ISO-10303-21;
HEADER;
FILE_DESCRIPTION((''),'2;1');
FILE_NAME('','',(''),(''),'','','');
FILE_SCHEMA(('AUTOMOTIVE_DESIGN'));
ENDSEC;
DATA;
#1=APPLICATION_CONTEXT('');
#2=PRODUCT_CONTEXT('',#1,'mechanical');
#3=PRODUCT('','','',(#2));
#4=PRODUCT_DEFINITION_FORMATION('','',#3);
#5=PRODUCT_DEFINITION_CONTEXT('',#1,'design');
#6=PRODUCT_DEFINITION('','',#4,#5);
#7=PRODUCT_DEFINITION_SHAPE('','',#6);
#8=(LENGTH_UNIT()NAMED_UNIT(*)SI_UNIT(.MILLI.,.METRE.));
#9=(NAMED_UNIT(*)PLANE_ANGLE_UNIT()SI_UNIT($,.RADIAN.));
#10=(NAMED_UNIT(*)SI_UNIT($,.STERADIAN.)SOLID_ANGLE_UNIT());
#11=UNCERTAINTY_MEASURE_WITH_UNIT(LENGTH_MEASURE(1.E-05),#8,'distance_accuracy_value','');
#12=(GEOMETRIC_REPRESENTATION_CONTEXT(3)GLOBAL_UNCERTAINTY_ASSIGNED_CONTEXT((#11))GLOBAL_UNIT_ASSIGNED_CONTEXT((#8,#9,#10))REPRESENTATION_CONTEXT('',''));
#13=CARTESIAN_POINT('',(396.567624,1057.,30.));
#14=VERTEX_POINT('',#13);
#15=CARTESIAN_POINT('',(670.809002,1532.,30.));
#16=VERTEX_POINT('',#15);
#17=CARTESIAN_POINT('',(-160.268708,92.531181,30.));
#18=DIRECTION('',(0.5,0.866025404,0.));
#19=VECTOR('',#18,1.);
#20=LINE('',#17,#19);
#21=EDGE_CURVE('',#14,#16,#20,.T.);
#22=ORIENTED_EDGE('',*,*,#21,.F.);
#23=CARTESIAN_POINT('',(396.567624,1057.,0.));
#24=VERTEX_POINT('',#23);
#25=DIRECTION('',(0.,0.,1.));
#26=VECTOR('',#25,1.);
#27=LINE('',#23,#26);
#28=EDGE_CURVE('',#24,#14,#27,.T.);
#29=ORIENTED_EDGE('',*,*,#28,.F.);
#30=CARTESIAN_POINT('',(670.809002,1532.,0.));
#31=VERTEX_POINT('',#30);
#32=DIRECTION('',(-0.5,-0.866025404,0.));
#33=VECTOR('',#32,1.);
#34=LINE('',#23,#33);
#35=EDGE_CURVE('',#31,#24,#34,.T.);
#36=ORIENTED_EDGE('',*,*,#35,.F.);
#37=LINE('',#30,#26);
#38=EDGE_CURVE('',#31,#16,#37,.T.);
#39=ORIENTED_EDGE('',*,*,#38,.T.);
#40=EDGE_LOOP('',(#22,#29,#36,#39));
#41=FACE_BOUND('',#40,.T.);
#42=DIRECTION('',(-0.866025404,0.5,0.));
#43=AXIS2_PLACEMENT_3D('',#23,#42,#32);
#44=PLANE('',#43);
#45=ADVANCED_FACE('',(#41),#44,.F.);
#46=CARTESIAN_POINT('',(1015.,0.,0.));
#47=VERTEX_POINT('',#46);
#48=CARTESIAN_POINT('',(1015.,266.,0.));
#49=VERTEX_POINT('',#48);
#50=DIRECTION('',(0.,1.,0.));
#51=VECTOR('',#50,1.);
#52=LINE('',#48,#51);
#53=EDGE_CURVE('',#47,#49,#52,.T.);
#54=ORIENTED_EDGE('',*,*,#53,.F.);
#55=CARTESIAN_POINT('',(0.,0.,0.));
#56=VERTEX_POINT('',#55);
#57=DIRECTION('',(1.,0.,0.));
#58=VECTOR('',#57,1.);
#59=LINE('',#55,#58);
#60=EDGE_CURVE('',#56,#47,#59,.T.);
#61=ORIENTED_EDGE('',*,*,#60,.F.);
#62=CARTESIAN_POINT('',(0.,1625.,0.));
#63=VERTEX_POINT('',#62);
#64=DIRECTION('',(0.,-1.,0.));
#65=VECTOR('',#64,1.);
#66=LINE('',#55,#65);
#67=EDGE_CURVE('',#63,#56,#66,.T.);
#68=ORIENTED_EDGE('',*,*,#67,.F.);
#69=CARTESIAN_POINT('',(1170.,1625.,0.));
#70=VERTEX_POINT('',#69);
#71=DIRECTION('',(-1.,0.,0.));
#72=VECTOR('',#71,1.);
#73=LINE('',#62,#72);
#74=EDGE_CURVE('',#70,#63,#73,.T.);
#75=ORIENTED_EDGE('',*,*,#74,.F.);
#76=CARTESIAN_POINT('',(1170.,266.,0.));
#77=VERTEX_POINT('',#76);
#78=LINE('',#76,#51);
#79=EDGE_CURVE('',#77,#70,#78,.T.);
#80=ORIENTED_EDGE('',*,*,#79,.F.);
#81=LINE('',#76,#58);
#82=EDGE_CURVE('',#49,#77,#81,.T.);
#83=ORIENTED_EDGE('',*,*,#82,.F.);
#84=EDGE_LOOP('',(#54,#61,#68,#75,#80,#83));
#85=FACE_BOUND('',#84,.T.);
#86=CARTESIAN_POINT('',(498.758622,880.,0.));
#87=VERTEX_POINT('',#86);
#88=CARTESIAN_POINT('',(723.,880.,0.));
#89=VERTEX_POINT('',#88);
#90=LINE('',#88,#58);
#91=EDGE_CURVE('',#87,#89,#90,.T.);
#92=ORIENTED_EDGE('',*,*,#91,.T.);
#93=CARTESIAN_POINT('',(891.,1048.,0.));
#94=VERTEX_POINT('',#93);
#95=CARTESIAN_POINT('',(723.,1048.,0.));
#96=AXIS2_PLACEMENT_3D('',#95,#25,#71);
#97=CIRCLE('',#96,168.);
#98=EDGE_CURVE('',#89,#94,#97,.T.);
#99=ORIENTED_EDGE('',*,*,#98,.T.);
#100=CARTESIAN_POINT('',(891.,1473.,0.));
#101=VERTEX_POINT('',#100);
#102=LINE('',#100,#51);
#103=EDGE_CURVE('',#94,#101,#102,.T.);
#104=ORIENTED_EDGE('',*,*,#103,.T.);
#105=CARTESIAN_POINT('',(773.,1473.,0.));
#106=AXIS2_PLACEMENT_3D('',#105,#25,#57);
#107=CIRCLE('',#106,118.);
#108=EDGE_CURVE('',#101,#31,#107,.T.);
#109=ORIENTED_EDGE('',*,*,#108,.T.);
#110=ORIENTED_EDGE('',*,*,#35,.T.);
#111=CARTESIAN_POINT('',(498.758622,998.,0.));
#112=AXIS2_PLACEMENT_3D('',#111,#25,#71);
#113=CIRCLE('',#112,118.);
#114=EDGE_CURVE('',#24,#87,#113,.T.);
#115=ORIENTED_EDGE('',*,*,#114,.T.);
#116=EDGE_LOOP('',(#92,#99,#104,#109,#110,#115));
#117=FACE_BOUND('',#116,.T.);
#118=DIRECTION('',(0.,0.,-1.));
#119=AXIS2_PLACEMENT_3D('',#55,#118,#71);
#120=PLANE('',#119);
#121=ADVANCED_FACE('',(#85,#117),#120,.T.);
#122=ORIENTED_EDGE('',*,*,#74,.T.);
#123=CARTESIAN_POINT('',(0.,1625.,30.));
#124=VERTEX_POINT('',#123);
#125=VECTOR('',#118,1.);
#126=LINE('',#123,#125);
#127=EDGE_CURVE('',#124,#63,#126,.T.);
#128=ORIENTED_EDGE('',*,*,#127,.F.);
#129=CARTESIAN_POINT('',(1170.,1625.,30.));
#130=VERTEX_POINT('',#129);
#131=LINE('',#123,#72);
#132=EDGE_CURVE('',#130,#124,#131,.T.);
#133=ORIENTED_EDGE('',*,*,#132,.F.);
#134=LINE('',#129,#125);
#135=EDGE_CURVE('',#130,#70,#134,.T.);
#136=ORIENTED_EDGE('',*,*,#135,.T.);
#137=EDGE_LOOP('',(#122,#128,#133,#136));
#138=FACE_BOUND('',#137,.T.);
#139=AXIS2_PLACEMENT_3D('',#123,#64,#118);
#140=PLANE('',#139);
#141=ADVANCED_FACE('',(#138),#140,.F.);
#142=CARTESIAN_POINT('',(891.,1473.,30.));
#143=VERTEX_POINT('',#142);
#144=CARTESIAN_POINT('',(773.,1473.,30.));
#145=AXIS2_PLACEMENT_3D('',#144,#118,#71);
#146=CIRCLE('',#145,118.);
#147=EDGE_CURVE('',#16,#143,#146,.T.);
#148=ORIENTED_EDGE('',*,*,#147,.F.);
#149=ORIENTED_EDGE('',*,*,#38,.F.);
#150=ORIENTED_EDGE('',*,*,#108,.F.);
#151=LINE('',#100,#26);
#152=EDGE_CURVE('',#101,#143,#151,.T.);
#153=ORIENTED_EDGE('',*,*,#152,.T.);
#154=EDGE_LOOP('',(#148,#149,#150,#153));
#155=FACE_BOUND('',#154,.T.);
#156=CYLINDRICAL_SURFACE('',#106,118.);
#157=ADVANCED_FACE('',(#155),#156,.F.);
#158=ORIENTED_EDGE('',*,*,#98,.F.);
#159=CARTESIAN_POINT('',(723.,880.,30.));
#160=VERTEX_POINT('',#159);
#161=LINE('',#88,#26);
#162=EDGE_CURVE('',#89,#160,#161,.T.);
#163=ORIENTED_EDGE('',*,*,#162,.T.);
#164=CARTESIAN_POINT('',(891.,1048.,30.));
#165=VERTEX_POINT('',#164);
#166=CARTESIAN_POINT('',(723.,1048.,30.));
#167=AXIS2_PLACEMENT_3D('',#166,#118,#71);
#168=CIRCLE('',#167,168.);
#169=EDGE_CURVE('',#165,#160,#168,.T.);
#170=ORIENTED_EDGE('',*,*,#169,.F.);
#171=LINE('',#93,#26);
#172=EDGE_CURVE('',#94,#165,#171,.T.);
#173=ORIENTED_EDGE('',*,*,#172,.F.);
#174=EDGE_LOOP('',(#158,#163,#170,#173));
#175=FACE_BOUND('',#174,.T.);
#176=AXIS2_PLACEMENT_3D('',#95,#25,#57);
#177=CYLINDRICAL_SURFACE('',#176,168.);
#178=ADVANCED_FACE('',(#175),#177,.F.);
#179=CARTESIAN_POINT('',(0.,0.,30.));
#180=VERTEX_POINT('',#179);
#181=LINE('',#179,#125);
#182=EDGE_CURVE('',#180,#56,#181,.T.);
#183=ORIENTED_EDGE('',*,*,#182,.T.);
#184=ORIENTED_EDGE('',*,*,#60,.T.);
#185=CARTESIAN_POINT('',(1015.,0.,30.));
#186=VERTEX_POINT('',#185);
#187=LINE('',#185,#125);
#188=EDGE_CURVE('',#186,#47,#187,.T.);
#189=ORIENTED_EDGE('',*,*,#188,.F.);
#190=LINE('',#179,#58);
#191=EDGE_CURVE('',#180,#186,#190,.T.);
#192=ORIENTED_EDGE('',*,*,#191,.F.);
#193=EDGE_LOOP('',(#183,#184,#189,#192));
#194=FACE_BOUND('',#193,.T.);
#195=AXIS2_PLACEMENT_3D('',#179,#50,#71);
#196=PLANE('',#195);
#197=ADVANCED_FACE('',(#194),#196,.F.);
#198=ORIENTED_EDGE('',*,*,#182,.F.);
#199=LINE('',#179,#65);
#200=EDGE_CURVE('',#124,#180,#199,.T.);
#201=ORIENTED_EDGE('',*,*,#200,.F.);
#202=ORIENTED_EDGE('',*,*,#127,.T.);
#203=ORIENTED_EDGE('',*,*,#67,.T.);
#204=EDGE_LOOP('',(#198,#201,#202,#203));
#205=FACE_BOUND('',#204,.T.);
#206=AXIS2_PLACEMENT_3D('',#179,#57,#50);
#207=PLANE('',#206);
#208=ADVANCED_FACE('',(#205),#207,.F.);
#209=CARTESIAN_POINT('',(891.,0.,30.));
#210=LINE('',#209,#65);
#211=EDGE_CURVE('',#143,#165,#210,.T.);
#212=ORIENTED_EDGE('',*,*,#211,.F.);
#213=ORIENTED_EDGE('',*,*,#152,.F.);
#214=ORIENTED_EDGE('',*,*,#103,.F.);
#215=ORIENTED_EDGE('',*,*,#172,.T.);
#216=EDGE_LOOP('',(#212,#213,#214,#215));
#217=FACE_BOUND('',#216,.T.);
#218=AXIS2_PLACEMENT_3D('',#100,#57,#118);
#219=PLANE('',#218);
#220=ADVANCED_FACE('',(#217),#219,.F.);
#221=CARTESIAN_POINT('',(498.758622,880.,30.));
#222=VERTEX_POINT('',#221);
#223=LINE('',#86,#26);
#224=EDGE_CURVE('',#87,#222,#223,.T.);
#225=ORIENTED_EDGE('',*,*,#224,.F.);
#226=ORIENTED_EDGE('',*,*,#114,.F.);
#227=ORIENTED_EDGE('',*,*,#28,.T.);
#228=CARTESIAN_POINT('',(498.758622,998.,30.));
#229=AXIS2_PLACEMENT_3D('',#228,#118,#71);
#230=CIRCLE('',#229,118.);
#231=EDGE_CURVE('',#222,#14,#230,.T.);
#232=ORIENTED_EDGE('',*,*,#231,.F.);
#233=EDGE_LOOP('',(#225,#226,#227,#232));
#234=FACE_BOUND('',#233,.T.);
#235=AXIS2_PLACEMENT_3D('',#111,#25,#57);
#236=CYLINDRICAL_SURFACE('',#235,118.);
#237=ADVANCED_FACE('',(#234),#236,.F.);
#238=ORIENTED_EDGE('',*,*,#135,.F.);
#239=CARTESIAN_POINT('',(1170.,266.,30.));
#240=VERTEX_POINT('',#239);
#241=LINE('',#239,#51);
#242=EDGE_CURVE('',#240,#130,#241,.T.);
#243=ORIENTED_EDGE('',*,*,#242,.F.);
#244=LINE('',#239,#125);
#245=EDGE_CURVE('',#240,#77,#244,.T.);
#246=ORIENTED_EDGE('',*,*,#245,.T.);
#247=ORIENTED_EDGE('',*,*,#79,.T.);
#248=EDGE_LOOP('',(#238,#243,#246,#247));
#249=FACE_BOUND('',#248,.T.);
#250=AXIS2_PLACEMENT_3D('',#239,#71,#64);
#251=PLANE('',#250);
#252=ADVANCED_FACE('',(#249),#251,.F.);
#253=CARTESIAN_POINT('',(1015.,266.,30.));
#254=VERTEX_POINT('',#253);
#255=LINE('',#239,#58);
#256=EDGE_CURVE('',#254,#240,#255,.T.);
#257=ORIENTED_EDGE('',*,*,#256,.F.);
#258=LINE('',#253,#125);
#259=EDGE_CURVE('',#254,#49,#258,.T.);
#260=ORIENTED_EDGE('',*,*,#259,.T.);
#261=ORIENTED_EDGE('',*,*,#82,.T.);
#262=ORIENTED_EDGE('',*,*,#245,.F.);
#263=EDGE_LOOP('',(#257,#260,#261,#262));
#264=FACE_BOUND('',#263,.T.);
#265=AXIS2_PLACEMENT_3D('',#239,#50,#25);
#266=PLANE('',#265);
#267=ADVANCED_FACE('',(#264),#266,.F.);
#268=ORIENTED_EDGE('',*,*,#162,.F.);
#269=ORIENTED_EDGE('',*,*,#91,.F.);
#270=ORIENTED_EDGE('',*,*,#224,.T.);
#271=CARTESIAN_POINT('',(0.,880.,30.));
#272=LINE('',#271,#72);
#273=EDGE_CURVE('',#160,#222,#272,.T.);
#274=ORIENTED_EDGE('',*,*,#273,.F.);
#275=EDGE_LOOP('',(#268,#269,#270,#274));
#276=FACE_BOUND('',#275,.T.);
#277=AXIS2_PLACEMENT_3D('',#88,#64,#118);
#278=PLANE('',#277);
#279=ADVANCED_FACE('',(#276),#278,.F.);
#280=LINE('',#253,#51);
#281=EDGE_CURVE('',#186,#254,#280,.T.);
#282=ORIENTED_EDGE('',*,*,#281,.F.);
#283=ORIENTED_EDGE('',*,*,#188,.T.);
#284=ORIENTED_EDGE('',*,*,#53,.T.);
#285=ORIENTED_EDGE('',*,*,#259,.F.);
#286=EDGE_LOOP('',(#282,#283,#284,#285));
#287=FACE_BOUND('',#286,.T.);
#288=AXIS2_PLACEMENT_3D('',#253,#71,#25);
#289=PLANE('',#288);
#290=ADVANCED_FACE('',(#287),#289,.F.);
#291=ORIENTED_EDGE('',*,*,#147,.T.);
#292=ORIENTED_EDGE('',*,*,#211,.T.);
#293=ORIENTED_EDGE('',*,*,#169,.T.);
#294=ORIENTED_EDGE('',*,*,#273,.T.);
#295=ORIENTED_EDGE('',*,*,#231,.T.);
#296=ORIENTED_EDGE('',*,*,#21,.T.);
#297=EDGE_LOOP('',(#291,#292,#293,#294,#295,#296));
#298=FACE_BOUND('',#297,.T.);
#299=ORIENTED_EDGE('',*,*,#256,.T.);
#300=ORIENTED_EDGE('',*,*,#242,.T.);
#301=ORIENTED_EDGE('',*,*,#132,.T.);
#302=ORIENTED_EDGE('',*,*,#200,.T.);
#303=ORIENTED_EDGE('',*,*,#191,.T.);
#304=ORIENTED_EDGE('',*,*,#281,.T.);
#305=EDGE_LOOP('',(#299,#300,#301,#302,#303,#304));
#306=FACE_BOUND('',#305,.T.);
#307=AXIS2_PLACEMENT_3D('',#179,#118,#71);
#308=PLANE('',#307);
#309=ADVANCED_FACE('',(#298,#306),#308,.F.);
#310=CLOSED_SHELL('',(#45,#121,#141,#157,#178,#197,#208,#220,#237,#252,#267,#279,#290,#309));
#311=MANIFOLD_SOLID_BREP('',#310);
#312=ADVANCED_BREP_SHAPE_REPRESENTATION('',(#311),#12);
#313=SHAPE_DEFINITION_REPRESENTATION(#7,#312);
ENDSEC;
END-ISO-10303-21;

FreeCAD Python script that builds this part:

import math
import FreeCAD as App
import Part
import Sketcher
from FreeCAD import Vector
Q = App.Units.Quantity

doc = App.newDocument("Part")
body = doc.addObject("PartDesign::Body", "Body")

# Sketch on XY plane
sketch1 = body.newObject("Sketcher::SketchObject", "Sketch")
sketch1.AttachmentSupport = (doc.getObject("XY_Plane"), [""])
sketch1.MapMode = "FlatFace"
sketch1.addGeometry([
    Part.LineSegment(Vector(0, 0, 0), Vector(1015, 0, 0)),  # 0
    Part.LineSegment(Vector(1015, 0, 0), Vector(1015, 266, 0)),  # 1
    Part.LineSegment(Vector(1015, 266, 0), Vector(1170, 266, 0)),  # 2
    Part.LineSegment(Vector(1170, 266, 0), Vector(1170, 1625, 0)),  # 3
    Part.LineSegment(Vector(1170, 1625, 0), Vector(0, 1625, 0)),  # 4
    Part.LineSegment(Vector(0, 1625, 0), Vector(0, 0, 0)),  # 5
], False)
sketch1.addConstraint([
    Sketcher.Constraint("Coincident", 0, 2, 1, 1),
    Sketcher.Constraint("Coincident", 1, 2, 2, 1),
    Sketcher.Constraint("Coincident", 2, 2, 3, 1),
    Sketcher.Constraint("Coincident", 3, 2, 4, 1),
    Sketcher.Constraint("Coincident", 4, 2, 5, 1),
    Sketcher.Constraint("Coincident", 5, 2, 0, 1),
    Sketcher.Constraint("Horizontal", 0),
    Sketcher.Constraint("Vertical", 1),
    Sketcher.Constraint("Horizontal", 2),
    Sketcher.Constraint("Vertical", 3),
    Sketcher.Constraint("Horizontal", 4),
    Sketcher.Constraint("Vertical", 5),
    Sketcher.Constraint("Coincident", 5, 2, -1, 1),
    Sketcher.Constraint("DistanceX", 0, 1, 0, 2, Q("1015 mm")),
    Sketcher.Constraint("DistanceX", 2, 1, 2, 2, Q("155 mm")),
    Sketcher.Constraint("DistanceY", 1, 1, 1, 2, Q("266 mm")),
    Sketcher.Constraint("DistanceY", 3, 1, 3, 2, Q("1359 mm")),
])
pad1 = body.newObject("PartDesign::Pad", "Pad")
pad1.Profile = sketch1
pad1.Length = 30

# Sketch on XY plane
sketch2 = body.newObject("Sketcher::SketchObject", "Sketch001")
sketch2.AttachmentSupport = (doc.getObject("XY_Plane"), [""])
sketch2.MapMode = "FlatFace"
sketch2.AttachmentOffset = App.Placement(Vector(0, 0, 31), App.Rotation())
sketch2.addGeometry([
    Part.LineSegment(Vector(891, 1048, 0), Vector(891, 1473, 0)),  # 0
    Part.ArcOfCircle(Part.Circle(Vector(773, 1473, 0), Vector(0, 0, 1), 118), math.radians(0), math.radians(150)),  # 1
    Part.LineSegment(Vector(671, 1532, 0), Vector(397, 1057, 0)),  # 2
    Part.ArcOfCircle(Part.Circle(Vector(499, 998, 0), Vector(0, 0, 1), 118), math.radians(150), math.radians(270)),  # 3
    Part.LineSegment(Vector(499, 880, 0), Vector(723, 880, 0)),  # 4
    Part.ArcOfCircle(Part.Circle(Vector(723, 1048, 0), Vector(0, 0, 1), 168), math.radians(-90), math.radians(0)),  # 5
], False)
sketch2.addConstraint([
    Sketcher.Constraint("Tangent", 0, 2, 1, 1),
    Sketcher.Constraint("Tangent", 1, 2, 2, 1),
    Sketcher.Constraint("Tangent", 2, 2, 3, 1),
    Sketcher.Constraint("Tangent", 3, 2, 4, 1),
    Sketcher.Constraint("Tangent", 4, 2, 5, 1),
    Sketcher.Constraint("Tangent", 5, 2, 0, 1),
    Sketcher.Constraint("Vertical", 0),
    Sketcher.Constraint("Horizontal", 4),
    Sketcher.Constraint("Equal", 1, 3),
    Sketcher.Constraint("Radius", 1, Q("118 mm")),
    Sketcher.Constraint("Radius", 5, Q("168 mm")),
    Sketcher.Constraint("DistanceY", 0, 1, 0, 2, Q("425 mm")),
    Sketcher.Constraint("Angle", 2, Q("-120 deg")),
    Sketcher.Constraint("DistanceX", -1, 1, 1, 3, Q("773 mm")),
    Sketcher.Constraint("DistanceY", -1, 1, 1, 3, Q("1473 mm")),
])
pocket1 = body.newObject("PartDesign::Pocket", "Pocket")
pocket1.Profile = sketch2
pocket1.Type = "ThroughAll"

doc.recompute()
